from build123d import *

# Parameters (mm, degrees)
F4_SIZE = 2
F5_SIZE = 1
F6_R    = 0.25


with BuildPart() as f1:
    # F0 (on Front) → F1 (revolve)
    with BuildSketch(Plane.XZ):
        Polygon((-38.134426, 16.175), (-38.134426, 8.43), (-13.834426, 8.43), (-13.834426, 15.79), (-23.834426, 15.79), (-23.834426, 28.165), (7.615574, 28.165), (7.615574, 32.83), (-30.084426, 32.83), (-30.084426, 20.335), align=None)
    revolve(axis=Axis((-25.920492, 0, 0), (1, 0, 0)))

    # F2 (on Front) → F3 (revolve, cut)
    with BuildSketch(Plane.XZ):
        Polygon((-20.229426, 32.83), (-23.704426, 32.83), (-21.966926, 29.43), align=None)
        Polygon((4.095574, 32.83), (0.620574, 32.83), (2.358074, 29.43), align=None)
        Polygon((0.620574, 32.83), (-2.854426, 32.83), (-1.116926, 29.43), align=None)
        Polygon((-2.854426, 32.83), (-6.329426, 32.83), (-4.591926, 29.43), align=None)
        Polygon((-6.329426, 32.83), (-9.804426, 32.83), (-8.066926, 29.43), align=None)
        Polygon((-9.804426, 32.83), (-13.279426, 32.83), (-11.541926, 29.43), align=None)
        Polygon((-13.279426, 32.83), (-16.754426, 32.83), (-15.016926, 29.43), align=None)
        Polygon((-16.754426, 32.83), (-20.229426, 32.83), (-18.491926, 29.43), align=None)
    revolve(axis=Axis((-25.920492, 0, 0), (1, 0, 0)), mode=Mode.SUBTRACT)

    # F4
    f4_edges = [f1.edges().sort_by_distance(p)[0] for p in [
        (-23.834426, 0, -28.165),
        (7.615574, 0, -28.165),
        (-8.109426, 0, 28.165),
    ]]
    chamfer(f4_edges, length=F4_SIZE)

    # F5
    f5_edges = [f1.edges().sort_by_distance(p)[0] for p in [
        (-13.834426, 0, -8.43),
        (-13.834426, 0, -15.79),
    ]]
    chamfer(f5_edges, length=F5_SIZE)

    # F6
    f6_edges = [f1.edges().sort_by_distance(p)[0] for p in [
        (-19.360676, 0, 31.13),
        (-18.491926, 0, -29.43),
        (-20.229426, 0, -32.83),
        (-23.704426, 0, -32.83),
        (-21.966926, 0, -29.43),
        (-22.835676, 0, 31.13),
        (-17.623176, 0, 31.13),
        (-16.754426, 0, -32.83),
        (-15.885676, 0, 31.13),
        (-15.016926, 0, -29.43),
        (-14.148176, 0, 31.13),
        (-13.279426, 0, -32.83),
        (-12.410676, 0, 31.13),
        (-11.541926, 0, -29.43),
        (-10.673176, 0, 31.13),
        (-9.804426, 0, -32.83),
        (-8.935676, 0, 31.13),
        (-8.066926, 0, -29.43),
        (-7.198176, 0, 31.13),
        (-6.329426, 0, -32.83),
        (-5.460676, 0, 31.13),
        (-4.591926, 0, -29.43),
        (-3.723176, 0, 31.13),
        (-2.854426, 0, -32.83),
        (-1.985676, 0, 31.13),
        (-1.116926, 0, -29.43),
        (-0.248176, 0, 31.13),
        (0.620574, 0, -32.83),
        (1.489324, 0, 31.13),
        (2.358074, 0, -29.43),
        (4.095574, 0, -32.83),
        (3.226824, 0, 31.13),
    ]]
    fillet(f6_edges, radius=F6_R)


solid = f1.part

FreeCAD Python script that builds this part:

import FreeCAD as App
import Part
import Sketcher

V = App.Vector


def edges_at(feature, points):
    """Names of the edges that pass closest to the given points."""
    edges = feature.Shape.Edges
    near = lambda p: min(range(len(edges)), key=lambda i: edges[i].distToShape(Part.Vertex(*p))[0])
    return sorted({f"Edge{near(p) + 1}" for p in points})

doc = App.newDocument("Part")
body = doc.addObject("PartDesign::Body", "Body")

sketch1 = body.newObject("Sketcher::SketchObject", "Sketch")
sketch1.AttachmentSupport = (doc.getObject("XZ_Plane"), [""])
sketch1.MapMode = "FlatFace"
sketch1.addGeometry(Part.LineSegment(V(-38.134426, 16.175, 0), V(-38.134426, 8.43, 0)), False)
sketch1.addGeometry(Part.LineSegment(V(-38.134426, 8.43, 0), V(-13.834426, 8.43, 0)), False)
sketch1.addGeometry(Part.LineSegment(V(-13.834426, 8.43, 0), V(-13.834426, 15.79, 0)), False)
sketch1.addGeometry(Part.LineSegment(V(-13.834426, 15.79, 0), V(-23.834426, 15.79, 0)), False)
sketch1.addGeometry(Part.LineSegment(V(-23.834426, 15.79, 0), V(-23.834426, 28.165, 0)), False)
sketch1.addGeometry(Part.LineSegment(V(-23.834426, 28.165, 0), V(7.615574, 28.165, 0)), False)
sketch1.addGeometry(Part.LineSegment(V(7.615574, 28.165, 0), V(7.615574, 32.83, 0)), False)
sketch1.addGeometry(Part.LineSegment(V(7.615574, 32.83, 0), V(-30.084426, 32.83, 0)), False)
sketch1.addGeometry(Part.LineSegment(V(-30.084426, 32.83, 0), V(-30.084426, 20.335, 0)), False)
sketch1.addGeometry(Part.LineSegment(V(-30.084426, 20.335, 0), V(-38.134426, 16.175, 0)), False)
sketch1.addConstraint(Sketcher.Constraint("Coincident", 0, 2, 1, 1))
sketch1.addConstraint(Sketcher.Constraint("Coincident", 1, 2, 2, 1))
sketch1.addConstraint(Sketcher.Constraint("Coincident", 2, 2, 3, 1))
sketch1.addConstraint(Sketcher.Constraint("Coincident", 3, 2, 4, 1))
sketch1.addConstraint(Sketcher.Constraint("Coincident", 4, 2, 5, 1))
sketch1.addConstraint(Sketcher.Constraint("Coincident", 5, 2, 6, 1))
sketch1.addConstraint(Sketcher.Constraint("Coincident", 6, 2, 7, 1))
sketch1.addConstraint(Sketcher.Constraint("Coincident", 7, 2, 8, 1))
sketch1.addConstraint(Sketcher.Constraint("Coincident", 8, 2, 9, 1))
sketch1.addConstraint(Sketcher.Constraint("Coincident", 9, 2, 0, 1))
sketch1.addConstraint(Sketcher.Constraint("Vertical", 0))
sketch1.addConstraint(Sketcher.Constraint("Horizontal", 1))
sketch1.addConstraint(Sketcher.Constraint("Vertical", 2))
sketch1.addConstraint(Sketcher.Constraint("Horizontal", 3))
sketch1.addConstraint(Sketcher.Constraint("Vertical", 4))
sketch1.addConstraint(Sketcher.Constraint("Horizontal", 5))
sketch1.addConstraint(Sketcher.Constraint("Vertical", 6))
sketch1.addConstraint(Sketcher.Constraint("Horizontal", 7))
sketch1.addConstraint(Sketcher.Constraint("Vertical", 8))
sketch1.addConstraint(Sketcher.Constraint("DistanceX", 3, 2, 3, 1, 10.0))
sketch1.addConstraint(Sketcher.Constraint("DistanceX", 1, 1, 1, 2, 24.3))
sketch1.addConstraint(Sketcher.Constraint("DistanceX", 7, 2, 7, 1, 37.7))
sketch1.addConstraint(Sketcher.Constraint("DistanceX", 5, 1, 5, 2, 31.45))
sketch1.addConstraint(Sketcher.Constraint("DistanceY", 2, 1, 2, 2, 7.36))
sketch1.addConstraint(Sketcher.Constraint("DistanceY", 1, 2, 6, 2, 24.4))
sketch1.addConstraint(Sketcher.Constraint("DistanceY", 0, 2, 0, 1, 7.745))
sketch1.addConstraint(Sketcher.Constraint("DistanceY", 4, 1, 4, 2, 12.375))
sketch1.addConstraint(Sketcher.Constraint("DistanceY", 8, 2, 8, 1, 12.495))
sketch1.addConstraint(Sketcher.Constraint("DistanceY", -1, 1, 0, 2, 8.43))
sketch1.addConstraint(Sketcher.Constraint("DistanceX", 0, 2, -1, 1, 38.134426))
revolution = body.newObject("PartDesign::Revolution", "Revolution")
revolution.Profile = sketch1
revolution.ReferenceAxis = (sketch1, ["H_Axis"])
revolution.Angle = 360

sketch2 = body.newObject("Sketcher::SketchObject", "Sketch001")
sketch2.AttachmentSupport = (doc.getObject("XZ_Plane"), [""])
sketch2.MapMode = "FlatFace"
sketch2.addGeometry(Part.LineSegment(V(-20.229426, 32.83, 0), V(-23.704426, 32.83, 0)), False)
sketch2.addGeometry(Part.LineSegment(V(-23.704426, 32.83, 0), V(-21.966926, 29.43, 0)), False)
sketch2.addGeometry(Part.LineSegment(V(-21.966926, 29.43, 0), V(-20.229426, 32.83, 0)), False)
sketch2.addGeometry(Part.LineSegment(V(4.095574, 32.83, 0), V(0.620574, 32.83, 0)), False)
sketch2.addGeometry(Part.LineSegment(V(0.620574, 32.83, 0), V(2.358074, 29.43, 0)), False)
sketch2.addGeometry(Part.LineSegment(V(2.358074, 29.43, 0), V(4.095574, 32.83, 0)), False)
sketch2.addGeometry(Part.LineSegment(V(0.620574, 32.83, 0), V(-2.854426, 32.83, 0)), False)
sketch2.addGeometry(Part.LineSegment(V(-2.854426, 32.83, 0), V(-1.116926, 29.43, 0)), False)
sketch2.addGeometry(Part.LineSegment(V(-1.116926, 29.43, 0), V(0.620574, 32.83, 0)), False)
sketch2.addGeometry(Part.LineSegment(V(-2.854426, 32.83, 0), V(-6.329426, 32.83, 0)), False)
sketch2.addGeometry(Part.LineSegment(V(-6.329426, 32.83, 0), V(-4.591926, 29.43, 0)), False)
sketch2.addGeometry(Part.LineSegment(V(-4.591926, 29.43, 0), V(-2.854426, 32.83, 0)), False)
sketch2.addGeometry(Part.LineSegment(V(-6.329426, 32.83, 0), V(-9.804426, 32.83, 0)), False)
sketch2.addGeometry(Part.LineSegment(V(-9.804426, 32.83, 0), V(-8.066926, 29.43, 0)), False)
sketch2.addGeometry(Part.LineSegment(V(-8.066926, 29.43, 0), V(-6.329426, 32.83, 0)), False)
sketch2.addGeometry(Part.LineSegment(V(-9.804426, 32.83, 0), V(-13.279426, 32.83, 0)), False)
sketch2.addGeometry(Part.LineSegment(V(-13.279426, 32.83, 0), V(-11.541926, 29.43, 0)), False)
sketch2.addGeometry(Part.LineSegment(V(-11.541926, 29.43, 0), V(-9.804426, 32.83, 0)), False)
sketch2.addGeometry(Part.LineSegment(V(-13.279426, 32.83, 0), V(-16.754426, 32.83, 0)), False)
sketch2.addGeometry(Part.LineSegment(V(-16.754426, 32.83, 0), V(-15.016926, 29.43, 0)), False)
sketch2.addGeometry(Part.LineSegment(V(-15.016926, 29.43, 0), V(-13.279426, 32.83, 0)), False)
sketch2.addGeometry(Part.LineSegment(V(-16.754426, 32.83, 0), V(-20.229426, 32.83, 0)), False)
sketch2.addGeometry(Part.LineSegment(V(-20.229426, 32.83, 0), V(-18.491926, 29.43, 0)), False)
sketch2.addGeometry(Part.LineSegment(V(-18.491926, 29.43, 0), V(-16.754426, 32.83, 0)), False)
sketch2.addConstraint(Sketcher.Constraint("Coincident", 0, 2, 1, 1))
sketch2.addConstraint(Sketcher.Constraint("Coincident", 1, 2, 2, 1))
sketch2.addConstraint(Sketcher.Constraint("Coincident", 2, 2, 0, 1))
sketch2.addConstraint(Sketcher.Constraint("Coincident", 3, 2, 4, 1))
sketch2.addConstraint(Sketcher.Constraint("Coincident", 4, 2, 5, 1))
sketch2.addConstraint(Sketcher.Constraint("Coincident", 5, 2, 3, 1))
sketch2.addConstraint(Sketcher.Constraint("Coincident", 6, 2, 7, 1))
sketch2.addConstraint(Sketcher.Constraint("Coincident", 7, 2, 8, 1))
sketch2.addConstraint(Sketcher.Constraint("Coincident", 8, 2, 6, 1))
sketch2.addConstraint(Sketcher.Constraint("Coincident", 9, 2, 10, 1))
sketch2.addConstraint(Sketcher.Constraint("Coincident", 10, 2, 11, 1))
sketch2.addConstraint(Sketcher.Constraint("Coincident", 11, 2, 9, 1))
sketch2.addConstraint(Sketcher.Constraint("Coincident", 12, 2, 13, 1))
sketch2.addConstraint(Sketcher.Constraint("Coincident", 13, 2, 14, 1))
sketch2.addConstraint(Sketcher.Constraint("Coincident", 14, 2, 12, 1))
sketch2.addConstraint(Sketcher.Constraint("Coincident", 15, 2, 16, 1))
sketch2.addConstraint(Sketcher.Constraint("Coincident", 16, 2, 17, 1))
sketch2.addConstraint(Sketcher.Constraint("Coincident", 17, 2, 15, 1))
sketch2.addConstraint(Sketcher.Constraint("Coincident", 18, 2, 19, 1))
sketch2.addConstraint(Sketcher.Constraint("Coincident", 19, 2, 20, 1))
sketch2.addConstraint(Sketcher.Constraint("Coincident", 20, 2, 18, 1))
sketch2.addConstraint(Sketcher.Constraint("Coincident", 21, 2, 22, 1))
sketch2.addConstraint(Sketcher.Constraint("Coincident", 22, 2, 23, 1))
sketch2.addConstraint(Sketcher.Constraint("Coincident", 23, 2, 21, 1))
sketch2.addConstraint(Sketcher.Constraint("Horizontal", 0))
sketch2.addConstraint(Sketcher.Constraint("Horizontal", 3))
sketch2.addConstraint(Sketcher.Constraint("Horizontal", 6))
sketch2.addConstraint(Sketcher.Constraint("Horizontal", 9))
sketch2.addConstraint(Sketcher.Constraint("Horizontal", 12))
sketch2.addConstraint(Sketcher.Constraint("Horizontal", 15))
sketch2.addConstraint(Sketcher.Constraint("Horizontal", 18))
sketch2.addConstraint(Sketcher.Constraint("Horizontal", 21))
sketch2.addConstraint(Sketcher.Constraint("Coincident", 8, 2, 3, 2))
sketch2.addConstraint(Sketcher.Constraint("Coincident", 11, 2, 6, 2))
sketch2.addConstraint(Sketcher.Constraint("Coincident", 14, 2, 9, 2))
sketch2.addConstraint(Sketcher.Constraint("Coincident", 17, 2, 12, 2))
sketch2.addConstraint(Sketcher.Constraint("Coincident", 20, 2, 15, 2))
sketch2.addConstraint(Sketcher.Constraint("Coincident", 21, 2, 2, 2))
sketch2.addConstraint(Sketcher.Constraint("Coincident", 23, 2, 18, 2))
sketch2.addConstraint(Sketcher.Constraint("Parallel", 1, 4))
sketch2.addConstraint(Sketcher.Constraint("Parallel", 2, 5))
sketch2.addConstraint(Sketcher.Constraint("Parallel", 4, 7))
sketch2.addConstraint(Sketcher.Constraint("Parallel", 5, 8))
sketch2.addConstraint(Sketcher.Constraint("Parallel", 7, 10))
sketch2.addConstraint(Sketcher.Constraint("Parallel", 8, 11))
sketch2.addConstraint(Sketcher.Constraint("Parallel", 10, 13))
sketch2.addConstraint(Sketcher.Constraint("Parallel", 11, 14))
sketch2.addConstraint(Sketcher.Constraint("Parallel", 13, 16))
sketch2.addConstraint(Sketcher.Constraint("Parallel", 14, 17))
sketch2.addConstraint(Sketcher.Constraint("Parallel", 16, 19))
sketch2.addConstraint(Sketcher.Constraint("Parallel", 17, 20))
sketch2.addConstraint(Sketcher.Constraint("Parallel", 19, 22))
sketch2.addConstraint(Sketcher.Constraint("Parallel", 20, 23))
sketch2.addConstraint(Sketcher.Constraint("Horizontal", 1, 2, 4, 2))
sketch2.addConstraint(Sketcher.Constraint("Horizontal", 4, 2, 7, 2))
sketch2.addConstraint(Sketcher.Constraint("Horizontal", 7, 2, 10, 2))
sketch2.addConstraint(Sketcher.Constraint("Horizontal", 10, 2, 13, 2))
sketch2.addConstraint(Sketcher.Constraint("Horizontal", 13, 2, 16, 2))
sketch2.addConstraint(Sketcher.Constraint("Horizontal", 16, 2, 19, 2))
sketch2.addConstraint(Sketcher.Constraint("Horizontal", 19, 2, 22, 2))
sketch2.addConstraint(Sketcher.Constraint("Equal", 1, 2))
sketch2.addConstraint(Sketcher.Constraint("DistanceY", 1, 2, 0, 2, 3.4))
sketch2.addConstraint(Sketcher.Constraint("DistanceX", 0, 2, 5, 2, 27.8))
sketch2.addConstraint(Sketcher.Constraint("DistanceY", -1, 1, 0, 2, 32.83))
sketch2.addConstraint(Sketcher.Constraint("DistanceX", 0, 2, -1, 1, 23.704426))
groove = body.newObject("PartDesign::Groove", "Groove")
groove.Profile = sketch2
groove.ReferenceAxis = (sketch2, ["H_Axis"])
groove.Angle = 360
doc.recompute()

chamfer = body.newObject("PartDesign::Chamfer", "Chamfer")
chamfer.Base = (groove, edges_at(groove, [(-23.834, 0, -28.165), (7.616, 0, -28.165), (-8.109, 0, 28.165)]))
chamfer.Size = 2
doc.recompute()

chamfer2 = body.newObject("PartDesign::Chamfer", "Chamfer001")
chamfer2.Base = (chamfer, edges_at(chamfer, [(-13.834, 0, -8.43), (-13.834, 0, -15.79)]))
chamfer2.Size = 1
doc.recompute()

fillet = body.newObject("PartDesign::Fillet", "Fillet")
fillet.Base = (chamfer2, edges_at(chamfer2, [
    (-19.361, 0, 31.13),
    (-18.492, 0, -29.43),
    (-20.229, 0, -32.83),
    (-23.704, 0, -32.83),
    (-21.967, 0, -29.43),
    (-22.836, 0, 31.13),
    (-17.623, 0, 31.13),
    (-16.754, 0, -32.83),
    (-15.886, 0, 31.13),
    (-15.017, 0, -29.43),
    (-14.148, 0, 31.13),
    (-13.279, 0, -32.83),
    (-12.411, 0, 31.13),
    (-11.542, 0, -29.43),
    (-10.673, 0, 31.13),
    (-9.804, 0, -32.83),
    (-8.936, 0, 31.13),
    (-8.067, 0, -29.43),
    (-7.198, 0, 31.13),
    (-6.329, 0, -32.83),
    (-5.461, 0, 31.13),
    (-4.592, 0, -29.43),
    (-3.723, 0, 31.13),
    (-2.854, 0, -32.83),
    (-1.986, 0, 31.13),
    (-1.117, 0, -29.43),
    (-0.248, 0, 31.13),
    (0.621, 0, -32.83),
    (1.489, 0, 31.13),
    (2.358, 0, -29.43),
    (4.096, 0, -32.83),
    (3.227, 0, 31.13),
]))
fillet.Radius = 0.25

doc.recompute()
